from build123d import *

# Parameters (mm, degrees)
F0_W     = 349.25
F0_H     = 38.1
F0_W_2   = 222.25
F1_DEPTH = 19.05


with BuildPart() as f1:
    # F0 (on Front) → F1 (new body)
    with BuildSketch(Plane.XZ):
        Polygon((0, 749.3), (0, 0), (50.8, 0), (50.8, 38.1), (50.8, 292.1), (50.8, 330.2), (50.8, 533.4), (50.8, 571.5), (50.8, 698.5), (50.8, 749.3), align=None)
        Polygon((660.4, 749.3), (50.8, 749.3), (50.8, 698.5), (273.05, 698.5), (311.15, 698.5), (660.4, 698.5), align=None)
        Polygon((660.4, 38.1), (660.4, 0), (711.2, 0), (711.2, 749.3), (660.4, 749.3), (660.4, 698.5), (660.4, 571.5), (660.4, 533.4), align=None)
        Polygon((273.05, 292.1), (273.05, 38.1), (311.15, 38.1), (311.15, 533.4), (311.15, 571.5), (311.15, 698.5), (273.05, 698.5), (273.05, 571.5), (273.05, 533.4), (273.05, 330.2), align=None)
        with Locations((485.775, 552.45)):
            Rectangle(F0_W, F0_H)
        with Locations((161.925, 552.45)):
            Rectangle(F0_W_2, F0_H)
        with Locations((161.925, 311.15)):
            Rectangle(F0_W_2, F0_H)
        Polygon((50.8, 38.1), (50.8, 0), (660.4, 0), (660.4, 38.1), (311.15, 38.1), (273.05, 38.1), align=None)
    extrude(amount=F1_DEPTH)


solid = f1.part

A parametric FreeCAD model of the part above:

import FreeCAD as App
import Part
import Sketcher

V = App.Vector
Q = App.Units.Quantity

doc = App.newDocument("Part")
body = doc.addObject("PartDesign::Body", "Body")

# Sketch on XZ plane
sketch1 = body.newObject("Sketcher::SketchObject", "Sketch")
sketch1.AttachmentSupport = (doc.getObject("XZ_Plane"), [""])
sketch1.MapMode = "FlatFace"
sketch1.addGeometry([
    Part.LineSegment(V(0, 749.3, 0), V(0, 0, 0)),  # 0
    Part.LineSegment(V(0, 0, 0), V(711.2, 0, 0)),  # 1
    Part.LineSegment(V(711.2, 0, 0), V(711.2, 749.3, 0)),  # 2
    Part.LineSegment(V(711.2, 749.3, 0), V(0, 749.3, 0)),  # 3
    Part.LineSegment(V(50.8, 38.1, 0), V(50.8, 292.1, 0)),  # 4
    Part.LineSegment(V(50.8, 292.1, 0), V(273.05, 292.1, 0)),  # 5
    Part.LineSegment(V(273.05, 292.1, 0), V(273.05, 38.1, 0)),  # 6
    Part.LineSegment(V(273.05, 38.1, 0), V(50.8, 38.1, 0)),  # 7
    Part.LineSegment(V(311.15, 38.1, 0), V(311.15, 533.4, 0)),  # 8
    Part.LineSegment(V(311.15, 533.4, 0), V(660.4, 533.4, 0)),  # 9
    Part.LineSegment(V(660.4, 533.4, 0), V(660.4, 38.1, 0)),  # 10
    Part.LineSegment(V(660.4, 38.1, 0), V(311.15, 38.1, 0)),  # 11
    Part.LineSegment(V(50.8, 330.2, 0), V(50.8, 533.4, 0)),  # 12
    Part.LineSegment(V(50.8, 533.4, 0), V(273.05, 533.4, 0)),  # 13
    Part.LineSegment(V(273.05, 533.4, 0), V(273.05, 330.2, 0)),  # 14
    Part.LineSegment(V(273.05, 330.2, 0), V(50.8, 330.2, 0)),  # 15
    Part.LineSegment(V(50.8, 571.5, 0), V(50.8, 698.5, 0)),  # 16
    Part.LineSegment(V(50.8, 698.5, 0), V(273.05, 698.5, 0)),  # 17
    Part.LineSegment(V(273.05, 698.5, 0), V(273.05, 571.5, 0)),  # 18
    Part.LineSegment(V(273.05, 571.5, 0), V(50.8, 571.5, 0)),  # 19
    Part.LineSegment(V(311.15, 571.5, 0), V(311.15, 698.5, 0)),  # 20
    Part.LineSegment(V(311.15, 698.5, 0), V(660.4, 698.5, 0)),  # 21
    Part.LineSegment(V(660.4, 698.5, 0), V(660.4, 571.5, 0)),  # 22
    Part.LineSegment(V(660.4, 571.5, 0), V(311.15, 571.5, 0)),  # 23
], False)
sketch1.addConstraint([
    Sketcher.Constraint("Coincident", 0, 2, 1, 1),
    Sketcher.Constraint("Coincident", 1, 2, 2, 1),
    Sketcher.Constraint("Coincident", 2, 2, 3, 1),
    Sketcher.Constraint("Coincident", 3, 2, 0, 1),
    Sketcher.Constraint("Coincident", 4, 2, 5, 1),
    Sketcher.Constraint("Coincident", 5, 2, 6, 1),
    Sketcher.Constraint("Coincident", 6, 2, 7, 1),
    Sketcher.Constraint("Coincident", 7, 2, 4, 1),
    Sketcher.Constraint("Coincident", 8, 2, 9, 1),
    Sketcher.Constraint("Coincident", 9, 2, 10, 1),
    Sketcher.Constraint("Coincident", 10, 2, 11, 1),
    Sketcher.Constraint("Coincident", 11, 2, 8, 1),
    Sketcher.Constraint("Coincident", 12, 2, 13, 1),
    Sketcher.Constraint("Coincident", 13, 2, 14, 1),
    Sketcher.Constraint("Coincident", 14, 2, 15, 1),
    Sketcher.Constraint("Coincident", 15, 2, 12, 1),
    Sketcher.Constraint("Coincident", 16, 2, 17, 1),
    Sketcher.Constraint("Coincident", 17, 2, 18, 1),
    Sketcher.Constraint("Coincident", 18, 2, 19, 1),
    Sketcher.Constraint("Coincident", 19, 2, 16, 1),
    Sketcher.Constraint("Coincident", 20, 2, 21, 1),
    Sketcher.Constraint("Coincident", 21, 2, 22, 1),
    Sketcher.Constraint("Coincident", 22, 2, 23, 1),
    Sketcher.Constraint("Coincident", 23, 2, 20, 1),
    Sketcher.Constraint("Vertical", 0),
    Sketcher.Constraint("Horizontal", 1),
    Sketcher.Constraint("Vertical", 2),
    Sketcher.Constraint("Horizontal", 3),
    Sketcher.Constraint("Vertical", 4),
    Sketcher.Constraint("Horizontal", 5),
    Sketcher.Constraint("Vertical", 6),
    Sketcher.Constraint("Horizontal", 7),
    Sketcher.Constraint("Vertical", 8),
    Sketcher.Constraint("Horizontal", 9),
    Sketcher.Constraint("Vertical", 10),
    Sketcher.Constraint("Horizontal", 11),
    Sketcher.Constraint("Vertical", 12),
    Sketcher.Constraint("Horizontal", 13),
    Sketcher.Constraint("Vertical", 14),
    Sketcher.Constraint("Horizontal", 15),
    Sketcher.Constraint("Vertical", 16),
    Sketcher.Constraint("Horizontal", 17),
    Sketcher.Constraint("Vertical", 18),
    Sketcher.Constraint("Horizontal", 19),
    Sketcher.Constraint("Vertical", 20),
    Sketcher.Constraint("Horizontal", 21),
    Sketcher.Constraint("Vertical", 22),
    Sketcher.Constraint("Horizontal", 23),
    Sketcher.Constraint("Coincident", 0, 2, -1, 1),
    Sketcher.Constraint("Horizontal", 7, 2, 10, 2),
    Sketcher.Constraint("Horizontal", 9, 2, 12, 2),
    Sketcher.Constraint("Horizontal", 17, 2, 20, 2),
    Sketcher.Constraint("Horizontal", 19, 2, 22, 2),
    Sketcher.Constraint("Vertical", 7, 2, 12, 2),
    Sketcher.Constraint("Vertical", 6, 2, 13, 2),
    Sketcher.Constraint("Vertical", 15, 2, 16, 2),
    Sketcher.Constraint("Vertical", 14, 2, 17, 2),
    Sketcher.Constraint("Vertical", 11, 2, 20, 2),
    Sketcher.Constraint("Vertical", 10, 2, 21, 2),
    Sketcher.Constraint("DistanceX", 1, 1, 1, 2, Q("28 in")),
    Sketcher.Constraint("DistanceY", 4, 1, 4, 2, Q("10 in")),
    Sketcher.Constraint("DistanceY", 12, 1, 12, 2, Q("8 in")),
    Sketcher.Constraint("DistanceY", 16, 1, 16, 2, Q("5 in")),
    Sketcher.Constraint("DistanceY", 0, 2, 0, 1, Q("29.5 in")),
    Sketcher.Constraint("DistanceY", 8, 1, 8, 2, Q("19.5 in")),
    Sketcher.Constraint("DistanceX", -1, 1, 4, 2, Q("2 in")),
    Sketcher.Constraint("DistanceY", -1, 1, 8, 2, Q("21 in")),
    Sketcher.Constraint("DistanceX", -1, 1, 9, 2, Q("26 in")),
    Sketcher.Constraint("DistanceY", 16, 2, 3, 2, Q("2 in")),
    Sketcher.Constraint("DistanceX", 5, 1, 5, 2, Q("8.75 in")),
    Sketcher.Constraint("DistanceX", 9, 1, 9, 2, Q("13.75 in")),
])
pad1 = body.newObject("PartDesign::Pad", "Pad")
pad1.Profile = sketch1
pad1.Length = Q("0.75 in")

doc.recompute()
